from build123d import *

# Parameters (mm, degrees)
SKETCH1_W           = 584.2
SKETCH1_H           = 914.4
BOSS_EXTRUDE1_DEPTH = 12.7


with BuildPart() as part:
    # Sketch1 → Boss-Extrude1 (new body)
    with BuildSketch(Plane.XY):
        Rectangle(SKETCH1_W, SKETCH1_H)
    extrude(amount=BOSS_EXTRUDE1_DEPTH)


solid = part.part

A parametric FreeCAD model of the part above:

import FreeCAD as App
import Part
import Sketcher

V = App.Vector
Q = App.Units.Quantity

doc = App.newDocument("Part")
params = doc.addObject("Spreadsheet::Sheet", "Params")
for row, (alias, value) in enumerate([
    ("sketch1_width", "23 in"),
    ("sketch1_height", "36 in"),
    ("pad1_length", "0.5 in"),
], start=1):
    params.set(f"A{row}", alias)
    params.set(f"B{row}", "=" + value)
    params.setAlias(f"B{row}", alias)

body = doc.addObject("PartDesign::Body", "Body")

# Sketch on XY plane
sketch1 = body.newObject("Sketcher::SketchObject", "Sketch")
sketch1.AttachmentSupport = (doc.getObject("XY_Plane"), [""])
sketch1.MapMode = "FlatFace"
sketch1.addGeometry([
    Part.LineSegment(V(-292, 457, 0), V(-292, -457, 0)),
    Part.LineSegment(V(-292, -457, 0), V(292, -457, 0)),
    Part.LineSegment(V(292, -457, 0), V(292, 457, 0)),
    Part.LineSegment(V(292, 457, 0), V(-292, 457, 0)),
], False)
sketch1.addConstraint([
    Sketcher.Constraint("Coincident", 0, 2, 1, 1),
    Sketcher.Constraint("Coincident", 1, 2, 2, 1),
    Sketcher.Constraint("Coincident", 2, 2, 3, 1),
    Sketcher.Constraint("Coincident", 3, 2, 0, 1),
    Sketcher.Constraint("Vertical", 0),
    Sketcher.Constraint("Horizontal", 1),
    Sketcher.Constraint("Vertical", 2),
    Sketcher.Constraint("Horizontal", 3),
    Sketcher.Constraint("Symmetric", 0, 2, 2, 2, -1, 1),
    Sketcher.Constraint("DistanceX", 1, 1, 1, 2, Q("23 in")),
    Sketcher.Constraint("DistanceY", 0, 2, 0, 1, Q("36 in")),
])
sketch1.setExpression("Constraints[9]", "Params.sketch1_width")
sketch1.setExpression("Constraints[10]", "Params.sketch1_height")
pad1 = body.newObject("PartDesign::Pad", "Pad")
pad1.Profile = sketch1
pad1.setExpression("Length", "Params.pad1_length")

doc.recompute()
